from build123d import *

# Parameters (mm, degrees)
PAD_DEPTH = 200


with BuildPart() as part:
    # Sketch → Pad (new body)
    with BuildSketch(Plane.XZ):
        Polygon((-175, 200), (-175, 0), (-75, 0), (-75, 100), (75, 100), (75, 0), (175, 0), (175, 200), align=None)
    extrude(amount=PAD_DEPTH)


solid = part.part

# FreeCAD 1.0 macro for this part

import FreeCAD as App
import Part
import Sketcher

V = App.Vector


def add_polygon(sketch, points):
    """Adds a closed chain of lines whose ends are joined by coincident constraints."""
    first, n = sketch.GeometryCount, len(points)
    for a, b in zip(points, points[1:] + points[:1]):
        sketch.addGeometry(Part.LineSegment(App.Vector(*a, 0), App.Vector(*b, 0)), False)
    for i in range(n):
        sketch.addConstraint(Sketcher.Constraint("Coincident", first + i, 2, first + (i + 1) % n, 1))

doc = App.newDocument("Part")
body = doc.addObject("PartDesign::Body", "Body")

sketch1 = doc.addObject("Sketcher::SketchObject", "Sketch")
body.addObject(sketch1)
sketch1.AttachmentSupport = (doc.XZ_Plane, [""])
sketch1.MapMode = "FlatFace"
add_polygon(sketch1, [(-175, 200), (-175, 0), (-75, 0), (-75, 100), (75, 100), (75, 0), (175, 0), (175, 200)])
sketch1.addConstraint(Sketcher.Constraint("Vertical", 0))
sketch1.addConstraint(Sketcher.Constraint("Horizontal", 1))
sketch1.addConstraint(Sketcher.Constraint("Vertical", 2))
sketch1.addConstraint(Sketcher.Constraint("Horizontal", 3))
sketch1.addConstraint(Sketcher.Constraint("Vertical", 4))
sketch1.addConstraint(Sketcher.Constraint("Horizontal", 5))
sketch1.addConstraint(Sketcher.Constraint("Vertical", 6))
sketch1.addConstraint(Sketcher.Constraint("Horizontal", 7))
sketch1.addConstraint(Sketcher.Constraint("Symmetric", 1, 2, 4, 2, -1, 1))
sketch1.addConstraint(Sketcher.Constraint("Symmetric", 0, 2, 5, 2, -2))
sketch1.addConstraint(Sketcher.Constraint("Equal", 5, 2))
sketch1.addConstraint(Sketcher.Constraint("DistanceX", 1, 1, 1, 2, 100.0))
sketch1.addConstraint(Sketcher.Constraint("DistanceX", 3, 1, 3, 2, 150.0))
sketch1.addConstraint(Sketcher.Constraint("DistanceY", 0, 2, 0, 1, 200.0))
pad1 = doc.addObject("PartDesign::Pad", "Pad")
body.addObject(pad1)
pad1.Profile = sketch1
pad1.Length = 200

doc.recompute()
